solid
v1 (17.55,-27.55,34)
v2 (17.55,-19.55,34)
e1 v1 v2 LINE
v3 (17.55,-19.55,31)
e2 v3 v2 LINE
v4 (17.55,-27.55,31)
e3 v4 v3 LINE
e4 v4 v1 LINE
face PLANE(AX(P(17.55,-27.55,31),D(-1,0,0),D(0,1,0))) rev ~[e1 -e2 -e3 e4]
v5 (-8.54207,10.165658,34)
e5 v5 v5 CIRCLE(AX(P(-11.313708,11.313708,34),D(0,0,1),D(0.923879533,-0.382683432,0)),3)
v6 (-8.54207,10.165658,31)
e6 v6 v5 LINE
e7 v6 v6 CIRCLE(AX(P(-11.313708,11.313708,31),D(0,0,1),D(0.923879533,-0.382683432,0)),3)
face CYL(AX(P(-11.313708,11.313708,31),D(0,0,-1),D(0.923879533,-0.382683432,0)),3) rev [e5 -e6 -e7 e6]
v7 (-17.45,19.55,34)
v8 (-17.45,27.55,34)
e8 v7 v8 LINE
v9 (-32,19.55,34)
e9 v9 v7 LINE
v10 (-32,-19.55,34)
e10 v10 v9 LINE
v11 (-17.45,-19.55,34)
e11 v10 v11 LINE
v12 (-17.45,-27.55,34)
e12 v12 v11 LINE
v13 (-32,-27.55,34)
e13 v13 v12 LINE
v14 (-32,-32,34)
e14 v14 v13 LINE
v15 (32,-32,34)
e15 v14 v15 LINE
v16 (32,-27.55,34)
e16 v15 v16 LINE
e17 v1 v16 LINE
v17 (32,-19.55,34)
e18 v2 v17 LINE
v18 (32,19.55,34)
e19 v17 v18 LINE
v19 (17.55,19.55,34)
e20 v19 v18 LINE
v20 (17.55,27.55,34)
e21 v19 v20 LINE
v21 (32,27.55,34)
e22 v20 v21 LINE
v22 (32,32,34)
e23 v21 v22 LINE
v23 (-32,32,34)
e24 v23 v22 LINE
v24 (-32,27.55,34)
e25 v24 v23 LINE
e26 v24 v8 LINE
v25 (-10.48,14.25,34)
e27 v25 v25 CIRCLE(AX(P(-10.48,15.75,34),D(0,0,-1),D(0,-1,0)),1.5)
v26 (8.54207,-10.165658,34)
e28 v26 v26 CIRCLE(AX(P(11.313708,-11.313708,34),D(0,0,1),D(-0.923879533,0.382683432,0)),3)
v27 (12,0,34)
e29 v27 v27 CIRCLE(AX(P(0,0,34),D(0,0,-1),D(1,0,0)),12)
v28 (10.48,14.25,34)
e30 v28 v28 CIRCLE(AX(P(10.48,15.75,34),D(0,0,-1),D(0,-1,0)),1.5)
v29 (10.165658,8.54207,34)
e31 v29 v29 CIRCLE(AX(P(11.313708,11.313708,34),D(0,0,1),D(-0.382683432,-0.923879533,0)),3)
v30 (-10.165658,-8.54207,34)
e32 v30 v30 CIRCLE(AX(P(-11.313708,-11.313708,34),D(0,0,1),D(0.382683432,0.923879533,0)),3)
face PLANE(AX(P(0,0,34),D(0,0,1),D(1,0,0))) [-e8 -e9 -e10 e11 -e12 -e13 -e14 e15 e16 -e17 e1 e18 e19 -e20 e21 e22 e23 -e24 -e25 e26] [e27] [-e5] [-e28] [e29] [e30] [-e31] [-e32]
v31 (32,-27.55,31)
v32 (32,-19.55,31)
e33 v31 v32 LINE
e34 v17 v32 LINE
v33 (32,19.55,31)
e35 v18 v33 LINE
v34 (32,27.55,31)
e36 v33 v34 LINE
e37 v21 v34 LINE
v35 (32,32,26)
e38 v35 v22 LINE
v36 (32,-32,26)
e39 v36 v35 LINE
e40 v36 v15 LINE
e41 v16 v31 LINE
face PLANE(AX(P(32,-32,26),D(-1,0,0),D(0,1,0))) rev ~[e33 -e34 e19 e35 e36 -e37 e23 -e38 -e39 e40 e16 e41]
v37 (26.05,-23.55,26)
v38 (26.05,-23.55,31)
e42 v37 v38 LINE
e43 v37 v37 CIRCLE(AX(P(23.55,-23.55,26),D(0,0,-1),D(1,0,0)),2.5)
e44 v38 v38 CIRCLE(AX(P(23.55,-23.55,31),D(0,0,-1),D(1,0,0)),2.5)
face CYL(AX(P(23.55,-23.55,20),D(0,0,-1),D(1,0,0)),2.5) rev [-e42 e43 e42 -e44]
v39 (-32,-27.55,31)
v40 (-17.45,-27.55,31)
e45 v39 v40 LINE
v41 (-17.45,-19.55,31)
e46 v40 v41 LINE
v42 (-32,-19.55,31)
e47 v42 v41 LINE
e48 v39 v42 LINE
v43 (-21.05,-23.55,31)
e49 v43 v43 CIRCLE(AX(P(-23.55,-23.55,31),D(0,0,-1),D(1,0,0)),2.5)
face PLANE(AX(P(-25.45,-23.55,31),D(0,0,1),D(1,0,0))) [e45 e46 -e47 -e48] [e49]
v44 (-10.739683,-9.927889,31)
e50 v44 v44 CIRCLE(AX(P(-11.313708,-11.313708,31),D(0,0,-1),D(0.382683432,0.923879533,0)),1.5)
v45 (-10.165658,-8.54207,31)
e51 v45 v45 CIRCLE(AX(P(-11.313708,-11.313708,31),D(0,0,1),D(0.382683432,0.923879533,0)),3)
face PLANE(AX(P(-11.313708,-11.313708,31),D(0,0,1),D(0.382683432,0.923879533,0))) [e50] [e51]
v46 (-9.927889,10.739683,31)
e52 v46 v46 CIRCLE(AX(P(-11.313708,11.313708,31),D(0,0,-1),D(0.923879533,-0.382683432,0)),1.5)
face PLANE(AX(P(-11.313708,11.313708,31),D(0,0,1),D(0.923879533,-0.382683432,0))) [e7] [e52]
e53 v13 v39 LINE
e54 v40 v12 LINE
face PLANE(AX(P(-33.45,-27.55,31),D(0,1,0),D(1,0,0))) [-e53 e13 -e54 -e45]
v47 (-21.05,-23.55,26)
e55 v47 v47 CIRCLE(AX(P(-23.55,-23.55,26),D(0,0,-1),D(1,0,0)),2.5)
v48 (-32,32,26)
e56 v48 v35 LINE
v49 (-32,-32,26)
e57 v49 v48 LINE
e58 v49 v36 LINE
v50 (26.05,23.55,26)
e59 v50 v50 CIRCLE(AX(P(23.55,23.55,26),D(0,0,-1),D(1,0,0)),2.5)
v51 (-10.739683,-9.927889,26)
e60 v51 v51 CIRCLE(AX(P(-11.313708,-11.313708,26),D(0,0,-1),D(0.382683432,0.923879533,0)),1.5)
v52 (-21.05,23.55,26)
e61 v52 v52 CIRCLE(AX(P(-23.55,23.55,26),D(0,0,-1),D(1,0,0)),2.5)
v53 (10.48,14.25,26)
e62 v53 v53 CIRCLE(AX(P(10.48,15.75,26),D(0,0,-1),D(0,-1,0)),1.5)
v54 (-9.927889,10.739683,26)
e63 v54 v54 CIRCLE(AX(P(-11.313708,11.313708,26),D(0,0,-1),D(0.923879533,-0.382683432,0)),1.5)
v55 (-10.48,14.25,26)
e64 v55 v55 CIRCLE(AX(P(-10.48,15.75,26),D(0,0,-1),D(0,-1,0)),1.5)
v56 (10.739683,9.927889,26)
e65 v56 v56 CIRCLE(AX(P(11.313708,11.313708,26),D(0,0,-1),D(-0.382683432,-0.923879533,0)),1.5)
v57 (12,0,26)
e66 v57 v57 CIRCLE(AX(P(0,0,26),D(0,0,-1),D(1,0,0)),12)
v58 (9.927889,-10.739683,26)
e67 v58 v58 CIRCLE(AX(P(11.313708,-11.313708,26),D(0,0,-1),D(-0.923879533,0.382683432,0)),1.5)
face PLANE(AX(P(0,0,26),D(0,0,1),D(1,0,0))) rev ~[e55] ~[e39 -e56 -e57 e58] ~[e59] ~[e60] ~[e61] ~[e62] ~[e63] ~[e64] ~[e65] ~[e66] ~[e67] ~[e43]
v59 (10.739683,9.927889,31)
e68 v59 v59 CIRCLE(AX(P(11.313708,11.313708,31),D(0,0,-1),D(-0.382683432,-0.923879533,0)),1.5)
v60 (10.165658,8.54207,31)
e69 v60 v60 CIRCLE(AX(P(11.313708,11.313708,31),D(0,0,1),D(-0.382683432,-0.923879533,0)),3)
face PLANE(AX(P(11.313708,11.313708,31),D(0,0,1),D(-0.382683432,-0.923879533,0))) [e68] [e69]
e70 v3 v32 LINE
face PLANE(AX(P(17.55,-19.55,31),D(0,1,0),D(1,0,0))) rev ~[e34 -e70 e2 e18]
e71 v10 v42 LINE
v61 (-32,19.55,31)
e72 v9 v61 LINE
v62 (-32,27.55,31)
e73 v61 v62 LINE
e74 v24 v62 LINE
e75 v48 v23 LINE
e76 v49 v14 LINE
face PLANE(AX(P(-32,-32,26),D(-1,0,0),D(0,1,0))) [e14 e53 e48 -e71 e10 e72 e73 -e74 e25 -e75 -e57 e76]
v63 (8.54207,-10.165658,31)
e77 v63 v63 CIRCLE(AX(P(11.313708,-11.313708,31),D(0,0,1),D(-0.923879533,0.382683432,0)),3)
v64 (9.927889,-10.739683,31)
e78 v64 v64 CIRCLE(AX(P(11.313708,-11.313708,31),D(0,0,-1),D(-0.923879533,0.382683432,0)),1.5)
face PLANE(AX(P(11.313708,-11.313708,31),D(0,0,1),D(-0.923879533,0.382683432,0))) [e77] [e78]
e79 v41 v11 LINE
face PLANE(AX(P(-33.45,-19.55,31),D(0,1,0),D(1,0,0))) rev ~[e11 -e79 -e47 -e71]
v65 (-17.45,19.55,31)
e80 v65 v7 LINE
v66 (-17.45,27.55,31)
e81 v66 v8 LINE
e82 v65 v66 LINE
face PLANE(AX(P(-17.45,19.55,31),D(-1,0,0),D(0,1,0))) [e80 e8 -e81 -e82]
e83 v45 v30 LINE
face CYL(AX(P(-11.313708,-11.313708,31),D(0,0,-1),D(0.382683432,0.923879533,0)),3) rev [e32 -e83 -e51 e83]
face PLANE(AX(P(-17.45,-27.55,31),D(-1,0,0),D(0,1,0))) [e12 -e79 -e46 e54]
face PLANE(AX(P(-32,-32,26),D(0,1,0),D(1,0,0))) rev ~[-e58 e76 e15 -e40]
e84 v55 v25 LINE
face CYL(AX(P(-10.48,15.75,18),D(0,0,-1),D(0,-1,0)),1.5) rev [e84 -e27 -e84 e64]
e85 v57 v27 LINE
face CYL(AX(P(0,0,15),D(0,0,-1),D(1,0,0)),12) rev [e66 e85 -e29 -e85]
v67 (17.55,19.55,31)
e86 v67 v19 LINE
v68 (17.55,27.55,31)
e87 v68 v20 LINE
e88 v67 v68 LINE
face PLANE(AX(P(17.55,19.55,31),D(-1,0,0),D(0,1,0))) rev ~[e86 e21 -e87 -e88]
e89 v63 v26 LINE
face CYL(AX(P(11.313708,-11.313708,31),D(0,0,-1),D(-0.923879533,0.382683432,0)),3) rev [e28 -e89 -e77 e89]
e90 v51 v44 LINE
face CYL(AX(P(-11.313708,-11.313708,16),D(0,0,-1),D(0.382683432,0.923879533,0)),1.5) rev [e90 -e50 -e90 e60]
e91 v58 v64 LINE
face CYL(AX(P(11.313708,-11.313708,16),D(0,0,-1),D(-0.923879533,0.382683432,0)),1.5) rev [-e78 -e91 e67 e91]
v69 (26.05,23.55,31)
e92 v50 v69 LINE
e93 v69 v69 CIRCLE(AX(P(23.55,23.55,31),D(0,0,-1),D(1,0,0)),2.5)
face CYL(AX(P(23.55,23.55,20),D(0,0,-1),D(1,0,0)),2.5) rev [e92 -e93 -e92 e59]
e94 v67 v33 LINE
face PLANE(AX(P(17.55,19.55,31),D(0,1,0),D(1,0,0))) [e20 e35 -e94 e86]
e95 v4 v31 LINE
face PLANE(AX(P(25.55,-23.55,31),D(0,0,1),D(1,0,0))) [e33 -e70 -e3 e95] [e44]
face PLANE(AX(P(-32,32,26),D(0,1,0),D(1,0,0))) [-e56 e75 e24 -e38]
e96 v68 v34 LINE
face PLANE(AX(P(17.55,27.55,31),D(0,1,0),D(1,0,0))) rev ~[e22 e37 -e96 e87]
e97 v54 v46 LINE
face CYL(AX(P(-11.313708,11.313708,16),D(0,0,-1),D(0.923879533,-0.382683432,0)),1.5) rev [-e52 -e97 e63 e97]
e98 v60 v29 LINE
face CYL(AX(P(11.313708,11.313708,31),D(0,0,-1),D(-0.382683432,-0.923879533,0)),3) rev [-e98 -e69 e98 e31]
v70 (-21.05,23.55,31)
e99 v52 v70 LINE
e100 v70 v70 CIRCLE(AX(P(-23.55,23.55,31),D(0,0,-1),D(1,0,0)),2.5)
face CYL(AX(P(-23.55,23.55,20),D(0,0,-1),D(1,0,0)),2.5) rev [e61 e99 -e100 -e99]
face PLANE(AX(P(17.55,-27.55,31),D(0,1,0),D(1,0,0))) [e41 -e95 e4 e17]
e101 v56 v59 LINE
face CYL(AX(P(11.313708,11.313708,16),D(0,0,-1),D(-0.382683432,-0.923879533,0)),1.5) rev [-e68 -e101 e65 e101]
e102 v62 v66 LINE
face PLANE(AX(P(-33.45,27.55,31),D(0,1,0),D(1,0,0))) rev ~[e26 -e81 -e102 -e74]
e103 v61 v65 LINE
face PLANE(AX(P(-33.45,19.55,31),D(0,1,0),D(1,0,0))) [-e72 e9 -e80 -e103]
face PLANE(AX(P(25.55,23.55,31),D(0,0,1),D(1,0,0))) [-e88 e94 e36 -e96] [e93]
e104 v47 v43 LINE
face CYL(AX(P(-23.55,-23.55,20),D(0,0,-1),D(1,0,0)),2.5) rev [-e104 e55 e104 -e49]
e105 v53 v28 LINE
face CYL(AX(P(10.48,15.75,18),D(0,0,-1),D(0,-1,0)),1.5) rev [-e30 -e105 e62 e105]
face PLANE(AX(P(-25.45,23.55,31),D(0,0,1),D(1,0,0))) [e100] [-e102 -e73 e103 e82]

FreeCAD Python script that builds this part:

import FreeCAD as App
import Part
import Sketcher
from FreeCAD import Vector
Q = App.Units.Quantity


def add_polygon(sketch, points):
    """Adds a closed chain of lines whose ends are joined by coincident constraints."""
    first, n = sketch.GeometryCount, len(points)
    for a, b in zip(points, points[1:] + points[:1]):
        sketch.addGeometry(Part.LineSegment(App.Vector(*a, 0), App.Vector(*b, 0)), False)
    for i in range(n):
        sketch.addConstraint(Sketcher.Constraint("Coincident", first + i, 2, first + (i + 1) % n, 1))

doc = App.newDocument("Part")
body = doc.addObject("PartDesign::Body", "Body")

# Sketch on XZ plane
sketch1 = doc.addObject("Sketcher::SketchObject", "Sketch")
body.addObject(sketch1)
sketch1.AttachmentSupport = (doc.XZ_Plane, [""])
sketch1.MapMode = "FlatFace"
sketch1.AttachmentOffset = App.Placement(Vector(0, 0, -114), App.Rotation())
sketch1.addGeometry(Part.Circle(Vector(15.8, 59.5, 0), Vector(0, 0, 1), 1.5), False)
sketch1.addConstraint(Sketcher.Constraint("Diameter", 0, Q("3 mm")))
sketch1.addConstraint(Sketcher.Constraint("DistanceX", -1, 1, 0, 3, Q("15.75 mm")))
sketch1.addConstraint(Sketcher.Constraint("DistanceY", -1, 1, 0, 3, Q("59.48 mm")))
pad1 = doc.addObject("PartDesign::Pad", "Pad")
body.addObject(pad1)
pad1.Profile = sketch1
pad1.Length = 20
pad1.Reversed = True
body2 = doc.addObject("PartDesign::Body", "Body001")
body2.AllowCompound = True

# Sketch on XZ plane
sketch2 = doc.addObject("Sketcher::SketchObject", "Sketch001")
body2.addObject(sketch2)
sketch2.AttachmentSupport = (doc.getObject("XZ_Plane001"), [""])
sketch2.MapMode = "FlatFace"
sketch2.AttachmentOffset = App.Placement(Vector(0, 0, -114), App.Rotation())
sketch2.addGeometry(Part.Circle(Vector(15.8, 38.5, 0), Vector(0, 0, 1), 1.5), False)
sketch2.addConstraint(Sketcher.Constraint("Diameter", 0, Q("3 mm")))
sketch2.addConstraint(Sketcher.Constraint("DistanceX", -1, 1, 0, 3, Q("15.75 mm")))
sketch2.addConstraint(Sketcher.Constraint("DistanceY", -1, 1, 0, 3, Q("38.52 mm")))
pad2 = doc.addObject("PartDesign::Pad", "Pad001")
body2.addObject(pad2)
pad2.Profile = sketch2
pad2.Length = 20
pad2.Reversed = True
doc.recompute()

boolean = doc.addObject("PartDesign::Boolean", "Boolean")
body2.addObject(boolean)
boolean.Type = "Fuse"
boolean.addObjects([body])
body3 = doc.addObject("PartDesign::Body", "Body002")
body3.AllowCompound = True
doc.recompute()

body2.Placement = App.Placement(Vector(0, 0, 0), App.Rotation(Vector(1, 0, 0), 90))
boolean2 = doc.addObject("PartDesign::Boolean", "Boolean001")
body3.addObject(boolean2)
boolean2.Type = "Fuse"
boolean2.addObjects([body2])
body4 = doc.addObject("PartDesign::Body", "Body003")
body4.AllowCompound = True
doc.recompute()

body3.Placement = App.Placement(Vector(-49, 0, -96), App.Rotation(Vector(0, 0, 1), 90))
boolean3 = doc.addObject("PartDesign::Boolean", "Boolean002")
body4.addObject(boolean3)
boolean3.Type = "Fuse"
boolean3.addObjects([body3])
body5 = doc.addObject("PartDesign::Body", "Body004")

# Sketch on XY plane
sketch3 = doc.addObject("Sketcher::SketchObject", "Sketch002")
body5.addObject(sketch3)
sketch3.AttachmentSupport = (doc.getObject("XY_Plane004"), [""])
sketch3.MapMode = "FlatFace"
sketch3.AttachmentOffset = App.Placement(Vector(0, 0, 31), App.Rotation())
add_polygon(sketch3, [(18, -20), (18, -28), (34, -28), (34, -20)])  # lines 0-3
sketch3.addConstraint(Sketcher.Constraint("Vertical", 0))
sketch3.addConstraint(Sketcher.Constraint("Horizontal", 1))
sketch3.addConstraint(Sketcher.Constraint("Vertical", 2))
sketch3.addConstraint(Sketcher.Constraint("Horizontal", 3))
sketch3.addConstraint(Sketcher.Constraint("DistanceX", 1, 1, 1, 2, Q("16 mm")))
sketch3.addConstraint(Sketcher.Constraint("DistanceY", 0, 2, 0, 1, Q("8 mm")))
sketch3.addConstraint(Sketcher.Constraint("DistanceX", -1, 1, 0, 2, Q("17.55 mm")))
sketch3.addConstraint(Sketcher.Constraint("DistanceY", 0, 2, -1, 1, Q("27.55 mm")))
pad3 = doc.addObject("PartDesign::Pad", "Pad002")
body5.addObject(pad3)
pad3.Profile = sketch3
pad3.Length = 3
body6 = doc.addObject("PartDesign::Body", "Body005")

# Sketch on XY plane
sketch4 = doc.addObject("Sketcher::SketchObject", "Sketch003")
body6.addObject(sketch4)
sketch4.AttachmentSupport = (doc.getObject("XY_Plane005"), [""])
sketch4.MapMode = "FlatFace"
sketch4.AttachmentOffset = App.Placement(Vector(0, 0, 31), App.Rotation())
add_polygon(sketch4, [(-33, 28), (-33, 20), (-17, 20), (-17, 28)])  # lines 0-3
sketch4.addConstraint(Sketcher.Constraint("Vertical", 0))
sketch4.addConstraint(Sketcher.Constraint("Horizontal", 1))
sketch4.addConstraint(Sketcher.Constraint("Vertical", 2))
sketch4.addConstraint(Sketcher.Constraint("Horizontal", 3))
sketch4.addConstraint(Sketcher.Constraint("DistanceX", 1, 1, 1, 2, Q("16 mm")))
sketch4.addConstraint(Sketcher.Constraint("DistanceY", 0, 2, 0, 1, Q("8 mm")))
sketch4.addConstraint(Sketcher.Constraint("DistanceX", 0, 2, -1, 1, Q("33.45 mm")))
sketch4.addConstraint(Sketcher.Constraint("DistanceY", -1, 1, 0, 2, Q("19.55 mm")))
pad4 = doc.addObject("PartDesign::Pad", "Pad003")
body6.addObject(pad4)
pad4.Profile = sketch4
pad4.Length = 3
body7 = doc.addObject("PartDesign::Body", "Body006")

# Sketch on XY plane
sketch5 = doc.addObject("Sketcher::SketchObject", "Sketch004")
body7.addObject(sketch5)
sketch5.AttachmentSupport = (doc.getObject("XY_Plane006"), [""])
sketch5.MapMode = "FlatFace"
sketch5.AttachmentOffset = App.Placement(Vector(0, 0, 31), App.Rotation())
add_polygon(sketch5, [(-33, -20), (-33, -28), (-17, -28), (-17, -20)])  # lines 0-3
sketch5.addConstraint(Sketcher.Constraint("Vertical", 0))
sketch5.addConstraint(Sketcher.Constraint("Horizontal", 1))
sketch5.addConstraint(Sketcher.Constraint("Vertical", 2))
sketch5.addConstraint(Sketcher.Constraint("Horizontal", 3))
sketch5.addConstraint(Sketcher.Constraint("DistanceX", 1, 1, 1, 2, Q("16 mm")))
sketch5.addConstraint(Sketcher.Constraint("DistanceY", 0, 2, 0, 1, Q("8 mm")))
sketch5.addConstraint(Sketcher.Constraint("DistanceX", 0, 2, -1, 1, Q("33.45 mm")))
sketch5.addConstraint(Sketcher.Constraint("DistanceY", 0, 2, -1, 1, Q("27.55 mm")))
pad5 = doc.addObject("PartDesign::Pad", "Pad004")
body7.addObject(pad5)
pad5.Profile = sketch5
pad5.Length = 3
body8 = doc.addObject("PartDesign::Body", "Body007")
body8.AllowCompound = True

# Sketch on XY plane
sketch6 = doc.addObject("Sketcher::SketchObject", "Sketch005")
body8.addObject(sketch6)
sketch6.AttachmentSupport = (doc.getObject("XY_Plane007"), [""])
sketch6.MapMode = "FlatFace"
sketch6.AttachmentOffset = App.Placement(Vector(0, 0, 31), App.Rotation())
add_polygon(sketch6, [(18, 28), (18, 20), (34, 20), (34, 28)])  # lines 0-3
sketch6.addConstraint(Sketcher.Constraint("Vertical", 0))
sketch6.addConstraint(Sketcher.Constraint("Horizontal", 1))
sketch6.addConstraint(Sketcher.Constraint("Vertical", 2))
sketch6.addConstraint(Sketcher.Constraint("Horizontal", 3))
sketch6.addConstraint(Sketcher.Constraint("DistanceX", 1, 1, 1, 2, Q("16 mm")))
sketch6.addConstraint(Sketcher.Constraint("DistanceY", 0, 2, 0, 1, Q("8 mm")))
sketch6.addConstraint(Sketcher.Constraint("DistanceX", -1, 1, 0, 2, Q("17.55 mm")))
sketch6.addConstraint(Sketcher.Constraint("DistanceY", -1, 1, 0, 2, Q("19.55 mm")))
pad6 = doc.addObject("PartDesign::Pad", "Pad005")
body8.addObject(pad6)
pad6.Profile = sketch6
pad6.Length = 3
doc.recompute()

boolean4 = doc.addObject("PartDesign::Boolean", "Boolean003")
body8.addObject(boolean4)
boolean4.Type = "Fuse"
boolean4.addObjects([body5])
doc.recompute()

boolean5 = doc.addObject("PartDesign::Boolean", "Boolean004")
body8.addObject(boolean5)
boolean5.Type = "Fuse"
boolean5.addObjects([body6])
doc.recompute()

boolean6 = doc.addObject("PartDesign::Boolean", "Boolean005")
body8.addObject(boolean6)
boolean6.Type = "Fuse"
boolean6.addObjects([body7])
body9 = doc.addObject("PartDesign::Body", "Body008")

# Sketch on XY plane
sketch7 = doc.addObject("Sketcher::SketchObject", "Sketch006")
body9.addObject(sketch7)
sketch7.AttachmentSupport = (doc.getObject("XY_Plane008"), [""])
sketch7.MapMode = "FlatFace"
sketch7.AttachmentOffset = App.Placement(Vector(0, 0, 15), App.Rotation())
sketch7.addGeometry(Part.Circle(Vector(0, 0, 0), Vector(0, 0, 1), 12), False)
sketch7.addConstraint(Sketcher.Constraint("Coincident", 0, 3, -1, 1))
sketch7.addConstraint(Sketcher.Constraint("Diameter", 0, Q("24 mm")))
pad7 = doc.addObject("PartDesign::Pad", "Pad006")
body9.addObject(pad7)
pad7.Profile = sketch7
pad7.Length = 20
body10 = doc.addObject("PartDesign::Body", "Body009")

# Sketch on XY plane
sketch8 = doc.addObject("Sketcher::SketchObject", "Sketch007")
body10.addObject(sketch8)
sketch8.AttachmentSupport = (doc.getObject("XY_Plane009"), [""])
sketch8.MapMode = "FlatFace"
sketch8.AttachmentOffset = App.Placement(Vector(0, 0, 26), App.Rotation())
sketch8.addGeometry(Part.Circle(Vector(24, 24, 0), Vector(0, 0, 1), 5), False)
sketch8.addConstraint(Sketcher.Constraint("Diameter", 0, Q("10 mm")))
sketch8.addConstraint(Sketcher.Constraint("DistanceX", -1, 1, 0, 3, Q("23.55 mm")))
sketch8.addConstraint(Sketcher.Constraint("DistanceY", -1, 1, 0, 3, Q("23.55 mm")))
pad8 = doc.addObject("PartDesign::Pad", "Pad007")
body10.addObject(pad8)
pad8.Profile = sketch8
pad8.Length = 4
body11 = doc.addObject("PartDesign::Body", "Body010")

# Sketch on XY plane
sketch9 = doc.addObject("Sketcher::SketchObject", "Sketch008")
body11.addObject(sketch9)
sketch9.AttachmentSupport = (doc.getObject("XY_Plane010"), [""])
sketch9.MapMode = "FlatFace"
sketch9.AttachmentOffset = App.Placement(Vector(0, 0, 26), App.Rotation())
sketch9.addGeometry(Part.Circle(Vector(24, -24, 0), Vector(0, 0, 1), 5), False)
sketch9.addConstraint(Sketcher.Constraint("Diameter", 0, Q("10 mm")))
sketch9.addConstraint(Sketcher.Constraint("DistanceX", -1, 1, 0, 3, Q("23.55 mm")))
sketch9.addConstraint(Sketcher.Constraint("DistanceY", 0, 3, -1, 1, Q("23.55 mm")))
pad9 = doc.addObject("PartDesign::Pad", "Pad008")
body11.addObject(pad9)
pad9.Profile = sketch9
pad9.Length = 4
body12 = doc.addObject("PartDesign::Body", "Body011")

# Sketch on XY plane
sketch10 = doc.addObject("Sketcher::SketchObject", "Sketch009")
body12.addObject(sketch10)
sketch10.AttachmentSupport = (doc.getObject("XY_Plane011"), [""])
sketch10.MapMode = "FlatFace"
sketch10.AttachmentOffset = App.Placement(Vector(0, 0, 26), App.Rotation())
sketch10.addGeometry(Part.Circle(Vector(-24, 24, 0), Vector(0, 0, 1), 5), False)
sketch10.addConstraint(Sketcher.Constraint("Diameter", 0, Q("10 mm")))
sketch10.addConstraint(Sketcher.Constraint("DistanceX", 0, 3, -1, 1, Q("23.55 mm")))
sketch10.addConstraint(Sketcher.Constraint("DistanceY", -1, 1, 0, 3, Q("23.55 mm")))
pad10 = doc.addObject("PartDesign::Pad", "Pad009")
body12.addObject(pad10)
pad10.Profile = sketch10
pad10.Length = 4
body13 = doc.addObject("PartDesign::Body", "Body012")
body13.AllowCompound = True

# Sketch on XY plane
sketch11 = doc.addObject("Sketcher::SketchObject", "Sketch010")
body13.addObject(sketch11)
sketch11.AttachmentSupport = (doc.getObject("XY_Plane012"), [""])
sketch11.MapMode = "FlatFace"
sketch11.AttachmentOffset = App.Placement(Vector(0, 0, 26), App.Rotation())
sketch11.addGeometry(Part.Circle(Vector(-24, -24, 0), Vector(0, 0, 1), 5), False)
sketch11.addConstraint(Sketcher.Constraint("Diameter", 0, Q("10 mm")))
sketch11.addConstraint(Sketcher.Constraint("DistanceX", 0, 3, -1, 1, Q("23.55 mm")))
sketch11.addConstraint(Sketcher.Constraint("DistanceY", 0, 3, -1, 1, Q("23.55 mm")))
pad11 = doc.addObject("PartDesign::Pad", "Pad010")
body13.addObject(pad11)
pad11.Profile = sketch11
pad11.Length = 4
doc.recompute()

boolean7 = doc.addObject("PartDesign::Boolean", "Boolean006")
body13.addObject(boolean7)
boolean7.Type = "Fuse"
boolean7.addObjects([body10])
doc.recompute()

boolean8 = doc.addObject("PartDesign::Boolean", "Boolean007")
body13.addObject(boolean8)
boolean8.Type = "Fuse"
boolean8.addObjects([body11])
doc.recompute()

boolean9 = doc.addObject("PartDesign::Boolean", "Boolean008")
body13.addObject(boolean9)
boolean9.Type = "Fuse"
boolean9.addObjects([body12])
body14 = doc.addObject("PartDesign::Body", "Body013")
body14.AllowCompound = True
doc.recompute()

body13.Placement = App.Placement(Vector(0, 0, -50), App.Rotation(Vector(0, 0, 1), 0))
boolean10 = doc.addObject("PartDesign::Boolean", "Boolean009")
body14.addObject(boolean10)
boolean10.Type = "Fuse"
boolean10.addObjects([body13])
body15 = doc.addObject("PartDesign::Body", "Body014")

# Sketch on XY plane
sketch12 = doc.addObject("Sketcher::SketchObject", "Sketch011")
body15.addObject(sketch12)
sketch12.AttachmentSupport = (doc.getObject("XY_Plane014"), [""])
sketch12.MapMode = "FlatFace"
sketch12.AttachmentOffset = App.Placement(Vector(0, 0, 20), App.Rotation())
sketch12.addGeometry(Part.Circle(Vector(-23.6, 23.6, 0), Vector(0, 0, 1), 2.5), False)
sketch12.addConstraint(Sketcher.Constraint("Diameter", 0, Q("5 mm")))
sketch12.addConstraint(Sketcher.Constraint("DistanceX", 0, 3, -1, 1, Q("23.55 mm")))
sketch12.addConstraint(Sketcher.Constraint("DistanceY", -1, 1, 0, 3, Q("23.55 mm")))
pad12 = doc.addObject("PartDesign::Pad", "Pad011")
body15.addObject(pad12)
pad12.Profile = sketch12
pad12.Length = 20
body16 = doc.addObject("PartDesign::Body", "Body015")

# Sketch on XY plane
sketch13 = doc.addObject("Sketcher::SketchObject", "Sketch012")
body16.addObject(sketch13)
sketch13.AttachmentSupport = (doc.getObject("XY_Plane015"), [""])
sketch13.MapMode = "FlatFace"
sketch13.AttachmentOffset = App.Placement(Vector(0, 0, 20), App.Rotation())
sketch13.addGeometry(Part.Circle(Vector(-23.6, -23.6, 0), Vector(0, 0, 1), 2.5), False)
sketch13.addConstraint(Sketcher.Constraint("Diameter", 0, Q("5 mm")))
sketch13.addConstraint(Sketcher.Constraint("DistanceX", 0, 3, -1, 1, Q("23.55 mm")))
sketch13.addConstraint(Sketcher.Constraint("DistanceY", 0, 3, -1, 1, Q("23.55 mm")))
pad13 = doc.addObject("PartDesign::Pad", "Pad012")
body16.addObject(pad13)
pad13.Profile = sketch13
pad13.Length = 20
body17 = doc.addObject("PartDesign::Body", "Body016")

# Sketch on XY plane
sketch14 = doc.addObject("Sketcher::SketchObject", "Sketch013")
body17.addObject(sketch14)
sketch14.AttachmentSupport = (doc.getObject("XY_Plane016"), [""])
sketch14.MapMode = "FlatFace"
sketch14.AttachmentOffset = App.Placement(Vector(0, 0, 20), App.Rotation())
sketch14.addGeometry(Part.Circle(Vector(23.6, -23.6, 0), Vector(0, 0, 1), 2.5), False)
sketch14.addConstraint(Sketcher.Constraint("Diameter", 0, Q("5 mm")))
sketch14.addConstraint(Sketcher.Constraint("DistanceX", -1, 1, 0, 3, Q("23.55 mm")))
sketch14.addConstraint(Sketcher.Constraint("DistanceY", 0, 3, -1, 1, Q("23.55 mm")))
pad14 = doc.addObject("PartDesign::Pad", "Pad013")
body17.addObject(pad14)
pad14.Profile = sketch14
pad14.Length = 20
body18 = doc.addObject("PartDesign::Body", "Body017")
body18.AllowCompound = True

# Sketch on XY plane
sketch15 = doc.addObject("Sketcher::SketchObject", "Sketch014")
body18.addObject(sketch15)
sketch15.AttachmentSupport = (doc.getObject("XY_Plane017"), [""])
sketch15.MapMode = "FlatFace"
sketch15.AttachmentOffset = App.Placement(Vector(0, 0, 20), App.Rotation())
sketch15.addGeometry(Part.Circle(Vector(23.6, 23.6, 0), Vector(0, 0, 1), 2.5), False)
sketch15.addConstraint(Sketcher.Constraint("Diameter", 0, Q("5 mm")))
sketch15.addConstraint(Sketcher.Constraint("DistanceX", -1, 1, 0, 3, Q("23.55 mm")))
sketch15.addConstraint(Sketcher.Constraint("DistanceY", -1, 1, 0, 3, Q("23.55 mm")))
pad15 = doc.addObject("PartDesign::Pad", "Pad014")
body18.addObject(pad15)
pad15.Profile = sketch15
pad15.Length = 20
doc.recompute()

boolean11 = doc.addObject("PartDesign::Boolean", "Boolean010")
body18.addObject(boolean11)
boolean11.Type = "Fuse"
boolean11.addObjects([body15])
doc.recompute()

boolean12 = doc.addObject("PartDesign::Boolean", "Boolean011")
body18.addObject(boolean12)
boolean12.Type = "Fuse"
boolean12.addObjects([body16])
doc.recompute()

boolean13 = doc.addObject("PartDesign::Boolean", "Boolean012")
body18.addObject(boolean13)
boolean13.Type = "Fuse"
boolean13.addObjects([body17])
body19 = doc.addObject("PartDesign::Body", "Body018")

# Sketch on XY plane
sketch16 = doc.addObject("Sketcher::SketchObject", "Sketch015")
body19.addObject(sketch16)
sketch16.AttachmentSupport = (doc.getObject("XY_Plane018"), [""])
sketch16.MapMode = "FlatFace"
sketch16.addGeometry(Part.Circle(Vector(0, 0, 0), Vector(0, 0, 1), 3), False)
sketch16.addConstraint(Sketcher.Constraint("Coincident", 0, 3, -1, 1))
sketch16.addConstraint(Sketcher.Constraint("Diameter", 0, Q("6 mm")))
pad16 = doc.addObject("PartDesign::Pad", "Pad015")
body19.addObject(pad16)
pad16.Profile = sketch16
pad16.Length = 3
body20 = doc.addObject("PartDesign::Body", "Body019")
doc.recompute()

body19.Placement = App.Placement(Vector(-16, 0, 2), App.Rotation(Vector(0, 0, 1), 22.5))
boolean14 = doc.addObject("PartDesign::Boolean", "Boolean013")
body20.addObject(boolean14)
boolean14.Type = "Fuse"
boolean14.addObjects([body19])
body21 = doc.addObject("PartDesign::Body", "Body020")

# Sketch on XY plane
sketch17 = doc.addObject("Sketcher::SketchObject", "Sketch016")
body21.addObject(sketch17)
sketch17.AttachmentSupport = (doc.getObject("XY_Plane020"), [""])
sketch17.MapMode = "FlatFace"
sketch17.addGeometry(Part.Circle(Vector(0, 0, 0), Vector(0, 0, 1), 3), False)
sketch17.addConstraint(Sketcher.Constraint("Coincident", 0, 3, -1, 1))
sketch17.addConstraint(Sketcher.Constraint("Diameter", 0, Q("6 mm")))
pad17 = doc.addObject("PartDesign::Pad", "Pad016")
body21.addObject(pad17)
pad17.Profile = sketch17
pad17.Length = 3
body22 = doc.addObject("PartDesign::Body", "Body021")
doc.recompute()

body21.Placement = App.Placement(Vector(0, 16, 2), App.Rotation(Vector(0, 0, -1), 67.5))
boolean15 = doc.addObject("PartDesign::Boolean", "Boolean014")
body22.addObject(boolean15)
boolean15.Type = "Fuse"
boolean15.addObjects([body21])
body23 = doc.addObject("PartDesign::Body", "Body022")

# Sketch on XY plane
sketch18 = doc.addObject("Sketcher::SketchObject", "Sketch017")
body23.addObject(sketch18)
sketch18.AttachmentSupport = (doc.getObject("XY_Plane022"), [""])
sketch18.MapMode = "FlatFace"
sketch18.addGeometry(Part.Circle(Vector(0, 0, 0), Vector(0, 0, 1), 3), False)
sketch18.addConstraint(Sketcher.Constraint("Coincident", 0, 3, -1, 1))
sketch18.addConstraint(Sketcher.Constraint("Diameter", 0, Q("6 mm")))
pad18 = doc.addObject("PartDesign::Pad", "Pad017")
body23.addObject(pad18)
pad18.Profile = sketch18
pad18.Length = 3
body24 = doc.addObject("PartDesign::Body", "Body023")
doc.recompute()

body23.Placement = App.Placement(Vector(16, 0, 2), App.Rotation(Vector(0, 0, 1), 202.5))
boolean16 = doc.addObject("PartDesign::Boolean", "Boolean015")
body24.addObject(boolean16)
boolean16.Type = "Fuse"
boolean16.addObjects([body23])
body25 = doc.addObject("PartDesign::Body", "Body024")

# Sketch on XY plane
sketch19 = doc.addObject("Sketcher::SketchObject", "Sketch018")
body25.addObject(sketch19)
sketch19.AttachmentSupport = (doc.getObject("XY_Plane024"), [""])
sketch19.MapMode = "FlatFace"
sketch19.addGeometry(Part.Circle(Vector(0, 0, 0), Vector(0, 0, 1), 3), False)
sketch19.addConstraint(Sketcher.Constraint("Coincident", 0, 3, -1, 1))
sketch19.addConstraint(Sketcher.Constraint("Diameter", 0, Q("6 mm")))
pad19 = doc.addObject("PartDesign::Pad", "Pad018")
body25.addObject(pad19)
pad19.Profile = sketch19
pad19.Length = 3
body26 = doc.addObject("PartDesign::Body", "Body025")
body26.AllowCompound = True
doc.recompute()

body25.Placement = App.Placement(Vector(0, -16, 2), App.Rotation(Vector(0, 0, 1), 112.5))
boolean17 = doc.addObject("PartDesign::Boolean", "Boolean016")
body26.addObject(boolean17)
boolean17.Type = "Fuse"
boolean17.addObjects([body25])
doc.recompute()

boolean18 = doc.addObject("PartDesign::Boolean", "Boolean017")
body26.addObject(boolean18)
boolean18.Type = "Fuse"
boolean18.addObjects([body20])
doc.recompute()

boolean19 = doc.addObject("PartDesign::Boolean", "Boolean018")
body26.addObject(boolean19)
boolean19.Type = "Fuse"
boolean19.addObjects([body22])
doc.recompute()

boolean20 = doc.addObject("PartDesign::Boolean", "Boolean019")
body26.addObject(boolean20)
boolean20.Type = "Fuse"
boolean20.addObjects([body24])
body27 = doc.addObject("PartDesign::Body", "Body026")
body27.AllowCompound = True
doc.recompute()

body26.Placement = App.Placement(Vector(0, 0, 29), App.Rotation(Vector(0, 0, 1), 45))
boolean21 = doc.addObject("PartDesign::Boolean", "Boolean020")
body27.addObject(boolean21)
boolean21.Type = "Fuse"
boolean21.addObjects([body26])
body28 = doc.addObject("PartDesign::Body", "Body027")

# Sketch on XY plane
sketch20 = doc.addObject("Sketcher::SketchObject", "Sketch019")
body28.addObject(sketch20)
sketch20.AttachmentSupport = (doc.getObject("XY_Plane027"), [""])
sketch20.MapMode = "FlatFace"
sketch20.addGeometry(Part.Circle(Vector(0, 0, 0), Vector(0, 0, 1), 1.5), False)
sketch20.addConstraint(Sketcher.Constraint("Coincident", 0, 3, -1, 1))
sketch20.addConstraint(Sketcher.Constraint("Diameter", 0, Q("3 mm")))
pad20 = doc.addObject("PartDesign::Pad", "Pad019")
body28.addObject(pad20)
pad20.Profile = sketch20
pad20.Length = 30
body29 = doc.addObject("PartDesign::Body", "Body028")
doc.recompute()

body28.Placement = App.Placement(Vector(-16, 0, 2), App.Rotation(Vector(0, 0, 1), 22.5))
boolean22 = doc.addObject("PartDesign::Boolean", "Boolean021")
body29.addObject(boolean22)
boolean22.Type = "Fuse"
boolean22.addObjects([body28])
body30 = doc.addObject("PartDesign::Body", "Body029")

# Sketch on XY plane
sketch21 = doc.addObject("Sketcher::SketchObject", "Sketch020")
body30.addObject(sketch21)
sketch21.AttachmentSupport = (doc.getObject("XY_Plane029"), [""])
sketch21.MapMode = "FlatFace"
sketch21.addGeometry(Part.Circle(Vector(0, 0, 0), Vector(0, 0, 1), 1.5), False)
sketch21.addConstraint(Sketcher.Constraint("Coincident", 0, 3, -1, 1))
sketch21.addConstraint(Sketcher.Constraint("Diameter", 0, Q("3 mm")))
pad21 = doc.addObject("PartDesign::Pad", "Pad020")
body30.addObject(pad21)
pad21.Profile = sketch21
pad21.Length = 30
body31 = doc.addObject("PartDesign::Body", "Body030")
doc.recompute()

body30.Placement = App.Placement(Vector(0, 16, 2), App.Rotation(Vector(0, 0, -1), 67.5))
boolean23 = doc.addObject("PartDesign::Boolean", "Boolean022")
body31.addObject(boolean23)
boolean23.Type = "Fuse"
boolean23.addObjects([body30])
body32 = doc.addObject("PartDesign::Body", "Body031")

# Sketch on XY plane
sketch22 = doc.addObject("Sketcher::SketchObject", "Sketch021")
body32.addObject(sketch22)
sketch22.AttachmentSupport = (doc.getObject("XY_Plane031"), [""])
sketch22.MapMode = "FlatFace"
sketch22.addGeometry(Part.Circle(Vector(0, 0, 0), Vector(0, 0, 1), 1.5), False)
sketch22.addConstraint(Sketcher.Constraint("Coincident", 0, 3, -1, 1))
sketch22.addConstraint(Sketcher.Constraint("Diameter", 0, Q("3 mm")))
pad22 = doc.addObject("PartDesign::Pad", "Pad021")
body32.addObject(pad22)
pad22.Profile = sketch22
pad22.Length = 30
body33 = doc.addObject("PartDesign::Body", "Body032")
doc.recompute()

body32.Placement = App.Placement(Vector(16, 0, 2), App.Rotation(Vector(0, 0, 1), 202.5))
boolean24 = doc.addObject("PartDesign::Boolean", "Boolean023")
body33.addObject(boolean24)
boolean24.Type = "Fuse"
boolean24.addObjects([body32])
body34 = doc.addObject("PartDesign::Body", "Body033")

# Sketch on XY plane
sketch23 = doc.addObject("Sketcher::SketchObject", "Sketch022")
body34.addObject(sketch23)
sketch23.AttachmentSupport = (doc.getObject("XY_Plane033"), [""])
sketch23.MapMode = "FlatFace"
sketch23.addGeometry(Part.Circle(Vector(0, 0, 0), Vector(0, 0, 1), 1.5), False)
sketch23.addConstraint(Sketcher.Constraint("Coincident", 0, 3, -1, 1))
sketch23.addConstraint(Sketcher.Constraint("Diameter", 0, Q("3 mm")))
pad23 = doc.addObject("PartDesign::Pad", "Pad022")
body34.addObject(pad23)
pad23.Profile = sketch23
pad23.Length = 30
body35 = doc.addObject("PartDesign::Body", "Body034")
body35.AllowCompound = True
doc.recompute()

body34.Placement = App.Placement(Vector(0, -16, 2), App.Rotation(Vector(0, 0, 1), 112.5))
boolean25 = doc.addObject("PartDesign::Boolean", "Boolean024")
body35.addObject(boolean25)
boolean25.Type = "Fuse"
boolean25.addObjects([body34])
doc.recompute()

boolean26 = doc.addObject("PartDesign::Boolean", "Boolean025")
body35.addObject(boolean26)
boolean26.Type = "Fuse"
boolean26.addObjects([body29])
doc.recompute()

boolean27 = doc.addObject("PartDesign::Boolean", "Boolean026")
body35.addObject(boolean27)
boolean27.Type = "Fuse"
boolean27.addObjects([body31])
doc.recompute()

boolean28 = doc.addObject("PartDesign::Boolean", "Boolean027")
body35.addObject(boolean28)
boolean28.Type = "Fuse"
boolean28.addObjects([body33])
body36 = doc.addObject("PartDesign::Body", "Body035")
body36.AllowCompound = True
doc.recompute()

body35.Placement = App.Placement(Vector(0, 0, 14), App.Rotation(Vector(0, 0, 1), 45))
boolean29 = doc.addObject("PartDesign::Boolean", "Boolean028")
body36.addObject(boolean29)
boolean29.Type = "Fuse"
boolean29.addObjects([body35])
body37 = doc.addObject("PartDesign::Body", "Body036")

# Sketch on XY plane
sketch24 = doc.addObject("Sketcher::SketchObject", "Sketch023")
body37.addObject(sketch24)
sketch24.AttachmentSupport = (doc.getObject("XY_Plane036"), [""])
sketch24.MapMode = "FlatFace"
sketch24.AttachmentOffset = App.Placement(Vector(0, 0, 26), App.Rotation())
add_polygon(sketch24, [(-32, 32), (-32, -32), (32, -32), (32, 32)])  # lines 0-3
sketch24.addConstraint(Sketcher.Constraint("Vertical", 0))
sketch24.addConstraint(Sketcher.Constraint("Horizontal", 1))
sketch24.addConstraint(Sketcher.Constraint("Vertical", 2))
sketch24.addConstraint(Sketcher.Constraint("Horizontal", 3))
sketch24.addConstraint(Sketcher.Constraint("Symmetric", 0, 2, 2, 2, -1, 1))
sketch24.addConstraint(Sketcher.Constraint("Equal", 3, 0))
sketch24.addConstraint(Sketcher.Constraint("DistanceX", 1, 1, 1, 2, Q("64 mm")))
pad24 = doc.addObject("PartDesign::Pad", "Pad023")
body37.addObject(pad24)
pad24.Profile = sketch24
pad24.Length = 8
doc.recompute()

boolean30 = doc.addObject("PartDesign::Boolean", "Boolean029")
body37.addObject(boolean30)
boolean30.Type = "Cut"
boolean30.addObjects([body36])
doc.recompute()

boolean31 = doc.addObject("PartDesign::Boolean", "Boolean030")
body37.addObject(boolean31)
boolean31.Type = "Cut"
boolean31.addObjects([body27])
doc.recompute()

boolean32 = doc.addObject("PartDesign::Boolean", "Boolean031")
body37.addObject(boolean32)
boolean32.Type = "Cut"
boolean32.addObjects([body18])
doc.recompute()

boolean33 = doc.addObject("PartDesign::Boolean", "Boolean032")
body37.addObject(boolean33)
boolean33.Type = "Cut"
boolean33.addObjects([body14])
doc.recompute()

boolean34 = doc.addObject("PartDesign::Boolean", "Boolean033")
body37.addObject(boolean34)
boolean34.Type = "Cut"
boolean34.addObjects([body9])
doc.recompute()

boolean35 = doc.addObject("PartDesign::Boolean", "Boolean034")
body37.addObject(boolean35)
boolean35.Type = "Cut"
boolean35.addObjects([body8])
doc.recompute()

boolean36 = doc.addObject("PartDesign::Boolean", "Boolean035")
body37.addObject(boolean36)
boolean36.Type = "Cut"
boolean36.addObjects([body4])

doc.recompute()
